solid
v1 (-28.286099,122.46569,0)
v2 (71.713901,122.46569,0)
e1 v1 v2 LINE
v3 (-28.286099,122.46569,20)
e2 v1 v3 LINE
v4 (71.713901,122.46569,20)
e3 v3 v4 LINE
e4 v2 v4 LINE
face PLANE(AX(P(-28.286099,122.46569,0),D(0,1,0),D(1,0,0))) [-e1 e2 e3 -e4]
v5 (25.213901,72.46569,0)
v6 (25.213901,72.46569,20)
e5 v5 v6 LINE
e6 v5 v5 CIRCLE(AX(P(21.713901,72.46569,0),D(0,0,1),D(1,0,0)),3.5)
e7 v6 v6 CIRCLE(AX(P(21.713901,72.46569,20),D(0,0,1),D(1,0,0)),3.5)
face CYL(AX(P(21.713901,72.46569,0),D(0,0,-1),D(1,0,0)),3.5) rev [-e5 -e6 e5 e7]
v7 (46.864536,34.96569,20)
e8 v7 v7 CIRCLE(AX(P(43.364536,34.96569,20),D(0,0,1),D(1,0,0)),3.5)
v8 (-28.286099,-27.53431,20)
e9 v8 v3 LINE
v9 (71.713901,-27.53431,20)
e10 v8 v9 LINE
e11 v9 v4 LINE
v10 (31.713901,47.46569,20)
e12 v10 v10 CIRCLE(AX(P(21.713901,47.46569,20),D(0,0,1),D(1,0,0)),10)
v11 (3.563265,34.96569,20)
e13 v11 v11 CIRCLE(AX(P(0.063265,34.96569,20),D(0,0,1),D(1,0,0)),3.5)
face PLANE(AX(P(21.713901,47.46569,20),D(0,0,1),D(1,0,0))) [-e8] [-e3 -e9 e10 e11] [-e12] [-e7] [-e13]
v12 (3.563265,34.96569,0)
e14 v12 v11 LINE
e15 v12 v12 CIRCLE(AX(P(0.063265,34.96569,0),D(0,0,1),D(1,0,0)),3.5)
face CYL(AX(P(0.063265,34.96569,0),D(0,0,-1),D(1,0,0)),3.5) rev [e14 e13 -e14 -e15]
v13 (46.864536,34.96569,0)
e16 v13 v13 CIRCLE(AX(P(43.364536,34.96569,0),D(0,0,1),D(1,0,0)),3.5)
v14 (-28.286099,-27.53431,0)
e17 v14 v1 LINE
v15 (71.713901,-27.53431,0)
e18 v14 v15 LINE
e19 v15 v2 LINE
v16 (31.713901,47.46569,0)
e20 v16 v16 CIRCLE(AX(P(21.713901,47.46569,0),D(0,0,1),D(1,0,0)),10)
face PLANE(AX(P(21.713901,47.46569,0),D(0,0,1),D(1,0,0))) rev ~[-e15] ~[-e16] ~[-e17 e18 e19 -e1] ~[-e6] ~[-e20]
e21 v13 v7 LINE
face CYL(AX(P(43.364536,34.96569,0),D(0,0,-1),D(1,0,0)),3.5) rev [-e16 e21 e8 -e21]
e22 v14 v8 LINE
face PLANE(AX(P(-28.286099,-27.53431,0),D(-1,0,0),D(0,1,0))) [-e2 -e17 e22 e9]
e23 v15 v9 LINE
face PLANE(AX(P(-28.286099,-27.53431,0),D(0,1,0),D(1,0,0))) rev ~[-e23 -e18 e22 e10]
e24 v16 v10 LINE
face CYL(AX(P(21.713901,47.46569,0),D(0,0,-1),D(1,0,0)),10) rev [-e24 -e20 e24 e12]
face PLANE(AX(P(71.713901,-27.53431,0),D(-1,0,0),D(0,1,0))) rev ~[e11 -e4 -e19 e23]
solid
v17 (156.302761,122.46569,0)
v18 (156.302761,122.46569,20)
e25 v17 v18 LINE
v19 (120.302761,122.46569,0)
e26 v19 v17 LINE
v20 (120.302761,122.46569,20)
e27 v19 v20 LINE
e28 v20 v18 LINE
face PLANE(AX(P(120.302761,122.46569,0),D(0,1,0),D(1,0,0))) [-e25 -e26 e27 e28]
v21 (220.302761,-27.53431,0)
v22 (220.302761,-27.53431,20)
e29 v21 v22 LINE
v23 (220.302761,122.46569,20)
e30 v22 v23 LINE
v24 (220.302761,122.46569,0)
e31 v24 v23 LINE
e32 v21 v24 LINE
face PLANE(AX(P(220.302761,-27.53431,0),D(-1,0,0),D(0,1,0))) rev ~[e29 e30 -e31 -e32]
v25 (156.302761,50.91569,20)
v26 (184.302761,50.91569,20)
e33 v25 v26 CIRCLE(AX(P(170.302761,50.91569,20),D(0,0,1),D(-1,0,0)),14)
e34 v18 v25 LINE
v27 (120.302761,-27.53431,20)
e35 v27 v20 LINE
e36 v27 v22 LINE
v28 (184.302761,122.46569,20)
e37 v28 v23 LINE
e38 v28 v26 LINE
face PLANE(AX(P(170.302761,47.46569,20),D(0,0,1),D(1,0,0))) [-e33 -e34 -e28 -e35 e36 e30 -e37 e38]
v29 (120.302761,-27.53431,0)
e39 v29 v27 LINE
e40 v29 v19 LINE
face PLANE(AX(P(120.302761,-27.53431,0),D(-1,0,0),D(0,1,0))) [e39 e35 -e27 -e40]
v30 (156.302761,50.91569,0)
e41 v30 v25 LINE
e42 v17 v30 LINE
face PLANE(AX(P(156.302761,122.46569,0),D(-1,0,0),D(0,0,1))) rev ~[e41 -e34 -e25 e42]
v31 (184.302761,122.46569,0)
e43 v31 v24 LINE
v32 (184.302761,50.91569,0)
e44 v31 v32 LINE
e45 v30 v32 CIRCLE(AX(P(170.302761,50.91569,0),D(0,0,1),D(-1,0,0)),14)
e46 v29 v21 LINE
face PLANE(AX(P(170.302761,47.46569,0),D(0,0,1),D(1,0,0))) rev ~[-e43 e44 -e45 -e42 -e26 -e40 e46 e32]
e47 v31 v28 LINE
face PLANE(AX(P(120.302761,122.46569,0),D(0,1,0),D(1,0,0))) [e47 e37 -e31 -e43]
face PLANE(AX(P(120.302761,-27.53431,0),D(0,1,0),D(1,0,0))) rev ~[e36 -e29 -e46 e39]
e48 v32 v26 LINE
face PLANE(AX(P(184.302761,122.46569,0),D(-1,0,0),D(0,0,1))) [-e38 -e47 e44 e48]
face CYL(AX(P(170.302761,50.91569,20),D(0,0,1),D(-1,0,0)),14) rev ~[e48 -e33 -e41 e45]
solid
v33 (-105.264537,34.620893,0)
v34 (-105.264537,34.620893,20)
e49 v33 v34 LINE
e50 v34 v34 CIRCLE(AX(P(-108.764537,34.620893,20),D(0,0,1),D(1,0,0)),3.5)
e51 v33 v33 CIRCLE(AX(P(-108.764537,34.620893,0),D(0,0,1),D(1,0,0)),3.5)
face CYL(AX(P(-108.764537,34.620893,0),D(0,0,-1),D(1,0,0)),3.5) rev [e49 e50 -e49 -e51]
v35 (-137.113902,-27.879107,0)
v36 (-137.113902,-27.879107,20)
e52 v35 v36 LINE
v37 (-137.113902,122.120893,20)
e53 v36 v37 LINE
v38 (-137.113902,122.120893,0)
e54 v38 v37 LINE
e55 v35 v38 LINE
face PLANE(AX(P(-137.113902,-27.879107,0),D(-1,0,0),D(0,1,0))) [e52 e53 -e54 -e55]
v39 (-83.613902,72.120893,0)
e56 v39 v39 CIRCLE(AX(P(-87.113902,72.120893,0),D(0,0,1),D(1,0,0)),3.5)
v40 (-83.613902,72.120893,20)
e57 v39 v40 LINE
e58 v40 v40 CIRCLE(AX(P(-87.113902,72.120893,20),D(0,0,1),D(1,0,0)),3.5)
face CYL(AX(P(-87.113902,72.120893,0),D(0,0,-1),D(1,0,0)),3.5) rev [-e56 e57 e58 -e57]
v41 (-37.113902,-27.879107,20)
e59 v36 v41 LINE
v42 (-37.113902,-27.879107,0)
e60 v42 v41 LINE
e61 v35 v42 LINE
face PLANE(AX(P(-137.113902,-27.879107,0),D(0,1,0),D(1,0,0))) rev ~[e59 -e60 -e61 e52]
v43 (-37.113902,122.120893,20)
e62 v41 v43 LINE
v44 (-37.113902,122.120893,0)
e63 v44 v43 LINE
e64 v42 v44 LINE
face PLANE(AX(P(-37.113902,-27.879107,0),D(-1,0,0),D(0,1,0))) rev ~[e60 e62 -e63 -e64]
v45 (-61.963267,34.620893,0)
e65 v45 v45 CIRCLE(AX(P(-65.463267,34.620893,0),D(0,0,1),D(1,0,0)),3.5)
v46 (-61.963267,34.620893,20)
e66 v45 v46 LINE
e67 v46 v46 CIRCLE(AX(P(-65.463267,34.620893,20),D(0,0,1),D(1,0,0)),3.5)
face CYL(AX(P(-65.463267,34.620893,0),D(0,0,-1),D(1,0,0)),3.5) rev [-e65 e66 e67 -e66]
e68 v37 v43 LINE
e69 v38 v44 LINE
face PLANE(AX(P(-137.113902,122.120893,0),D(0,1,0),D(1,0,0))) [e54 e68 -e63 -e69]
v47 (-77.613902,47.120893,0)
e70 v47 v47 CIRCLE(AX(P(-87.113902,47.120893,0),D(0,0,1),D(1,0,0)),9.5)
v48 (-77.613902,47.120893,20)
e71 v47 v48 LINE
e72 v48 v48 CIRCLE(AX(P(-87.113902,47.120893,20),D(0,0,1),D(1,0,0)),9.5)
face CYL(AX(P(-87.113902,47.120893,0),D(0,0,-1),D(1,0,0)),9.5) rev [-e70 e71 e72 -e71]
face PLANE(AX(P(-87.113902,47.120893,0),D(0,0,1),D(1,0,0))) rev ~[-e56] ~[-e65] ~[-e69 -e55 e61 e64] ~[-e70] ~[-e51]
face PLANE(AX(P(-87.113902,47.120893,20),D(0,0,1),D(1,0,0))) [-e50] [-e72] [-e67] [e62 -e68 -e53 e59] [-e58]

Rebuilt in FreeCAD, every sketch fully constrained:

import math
import FreeCAD as App
import Part
import Sketcher
from FreeCAD import Vector

doc = App.newDocument("Part")
body = doc.addObject("PartDesign::Body", "Body")
body.AllowCompound = True

# Sketch on XY plane
sketch1 = body.newObject("Sketcher::SketchObject", "Sketch")
sketch1.AttachmentSupport = (doc.getObject("XY_Plane"), [""])
sketch1.MapMode = "FlatFace"
sketch1.addGeometry([
    Part.LineSegment(Vector(-28.286099, 122.46569, 0), Vector(-28.286099, -27.53431, 0)),  # 0
    Part.LineSegment(Vector(-28.286099, -27.53431, 0), Vector(71.713901, -27.53431, 0)),  # 1
    Part.LineSegment(Vector(71.713901, -27.53431, 0), Vector(71.713901, 122.46569, 0)),  # 2
    Part.LineSegment(Vector(71.713901, 122.46569, 0), Vector(-28.286099, 122.46569, 0)),  # 3
    Part.Circle(Vector(0.063265, 34.96569, 0), Vector(0, 0, 1), 3.5),  # 4
    Part.Circle(Vector(43.364536, 34.96569, 0), Vector(0, 0, 1), 3.5),  # 5
    Part.Circle(Vector(21.713901, 47.46569, 0), Vector(0, 0, 1), 10),  # 6
    Part.Circle(Vector(21.713901, 72.46569, 0), Vector(0, 0, 1), 3.5),  # 7
    Part.LineSegment(Vector(-137.113902, 122.120893, 0), Vector(-137.113902, -27.879107, 0)),  # 8
    Part.LineSegment(Vector(-137.113902, -27.879107, 0), Vector(-37.113902, -27.879107, 0)),  # 9
    Part.LineSegment(Vector(-37.113902, -27.879107, 0), Vector(-37.113902, 122.120893, 0)),  # 10
    Part.LineSegment(Vector(-37.113902, 122.120893, 0), Vector(-137.113902, 122.120893, 0)),  # 11
    Part.Circle(Vector(-108.764537, 34.620893, 0), Vector(0, 0, 1), 3.5),  # 12
    Part.Circle(Vector(-65.463267, 34.620893, 0), Vector(0, 0, 1), 3.5),  # 13
    Part.Circle(Vector(-87.113902, 47.120893, 0), Vector(0, 0, 1), 9.5),  # 14
    Part.Circle(Vector(-87.113902, 72.120893, 0), Vector(0, 0, 1), 3.5),  # 15
    Part.LineSegment(Vector(120.302761, 122.46569, 0), Vector(120.302761, -27.53431, 0)),  # 16
    Part.LineSegment(Vector(120.302761, -27.53431, 0), Vector(220.302761, -27.53431, 0)),  # 17
    Part.LineSegment(Vector(220.302761, -27.53431, 0), Vector(220.302761, 122.46569, 0)),  # 18
    Part.LineSegment(Vector(220.302761, 122.46569, 0), Vector(120.302761, 122.46569, 0)),  # 19
], False)
sketch1.addConstraint([
    Sketcher.Constraint("Coincident", 0, 2, 1, 1),
    Sketcher.Constraint("Coincident", 1, 2, 2, 1),
    Sketcher.Constraint("Coincident", 2, 2, 3, 1),
    Sketcher.Constraint("Coincident", 3, 2, 0, 1),
    Sketcher.Constraint("Coincident", 8, 2, 9, 1),
    Sketcher.Constraint("Coincident", 9, 2, 10, 1),
    Sketcher.Constraint("Coincident", 10, 2, 11, 1),
    Sketcher.Constraint("Coincident", 11, 2, 8, 1),
    Sketcher.Constraint("Coincident", 16, 2, 17, 1),
    Sketcher.Constraint("Coincident", 17, 2, 18, 1),
    Sketcher.Constraint("Coincident", 18, 2, 19, 1),
    Sketcher.Constraint("Coincident", 19, 2, 16, 1),
    Sketcher.Constraint("Vertical", 0),
    Sketcher.Constraint("Horizontal", 1),
    Sketcher.Constraint("Vertical", 2),
    Sketcher.Constraint("Horizontal", 3),
    Sketcher.Constraint("Vertical", 8),
    Sketcher.Constraint("Horizontal", 9),
    Sketcher.Constraint("Vertical", 10),
    Sketcher.Constraint("Horizontal", 11),
    Sketcher.Constraint("Vertical", 16),
    Sketcher.Constraint("Horizontal", 17),
    Sketcher.Constraint("Vertical", 18),
    Sketcher.Constraint("Horizontal", 19),
    Sketcher.Constraint("Equal", 4, 5),
    Sketcher.Constraint("Equal", 5, 7),
    Sketcher.Constraint("Equal", 7, 12),
    Sketcher.Constraint("Equal", 12, 13),
    Sketcher.Constraint("Equal", 13, 15),
    Sketcher.Constraint("Horizontal", 4, 3, 5, 3),
    Sketcher.Constraint("Horizontal", 12, 3, 13, 3),
    Sketcher.Constraint("Horizontal", 1, 2, 16, 2),
    Sketcher.Constraint("Horizontal", 3, 2, 18, 2),
    Sketcher.Constraint("Vertical", 6, 3, 7, 3),
    Sketcher.Constraint("Vertical", 14, 3, 15, 3),
    Sketcher.Constraint("Equal", 3, 9),
    Sketcher.Constraint("Equal", 11, 17),
    Sketcher.Constraint("Equal", 2, 8),
    Sketcher.Constraint("Diameter", 4, 7.0),
    Sketcher.Constraint("Diameter", 6, 20.0),
    Sketcher.Constraint("Diameter", 14, 19.0),
    Sketcher.Constraint("DistanceX", 1, 1, 1, 2, 100.0),
    Sketcher.Constraint("DistanceY", 0, 2, 0, 1, 150.0),
    Sketcher.Constraint("DistanceY", 6, 3, 7, 3, 25.0),
    Sketcher.Constraint("DistanceY", 14, 3, 15, 3, 25.0),
    Sketcher.Constraint("DistanceX", 0, 2, 6, 3, 50.0),
    Sketcher.Constraint("DistanceY", 0, 2, 6, 3, 75.0),
    Sketcher.Constraint("DistanceX", 8, 2, 14, 3, 50.0),
    Sketcher.Constraint("DistanceY", 8, 2, 14, 3, 75.0),
    Sketcher.Constraint("DistanceY", 5, 3, 6, 3, 12.5),
    Sketcher.Constraint("DistanceY", 13, 3, 14, 3, 12.5),
    Sketcher.Constraint("DistanceX", -1, 1, 6, 3, 21.713901),
    Sketcher.Constraint("DistanceX", 14, 3, -1, 1, 87.113902),
    Sketcher.Constraint("DistanceY", -1, 1, 4, 3, 34.96569),
    Sketcher.Constraint("DistanceX", -1, 1, 16, 2, 120.302761),
    Sketcher.Constraint("DistanceX", 4, 3, 5, 3, 43.301271),
    Sketcher.Constraint("DistanceX", 12, 3, 6, 3, 130.478438),
    Sketcher.Constraint("DistanceX", 12, 3, 13, 3, 43.30127),
    Sketcher.Constraint("DistanceX", -1, 1, 4, 3, 0.063265),
    Sketcher.Constraint("DistanceY", -1, 1, 12, 3, 34.620893),
])
pad1 = body.newObject("PartDesign::Pad", "Pad")
pad1.Profile = sketch1
pad1.Length = 20

# Sketch on XZ plane
sketch2 = body.newObject("Sketcher::SketchObject", "Sketch001")
sketch2.AttachmentSupport = (doc.getObject("XZ_Plane"), [""])
sketch2.MapMode = "FlatFace"
sketch2.AttachmentOffset = App.Placement(Vector(0, 0, -122.46569), App.Rotation())
sketch2.addGeometry([
    Part.LineSegment(Vector(184.302761, 20, 0), Vector(184.302761, 0, 0)),
    Part.LineSegment(Vector(184.302761, 0, 0), Vector(156.302761, 0, 0)),
    Part.LineSegment(Vector(156.302761, 0, 0), Vector(156.302761, 20, 0)),
    Part.LineSegment(Vector(156.302761, 20, 0), Vector(184.302761, 20, 0)),
], False)
sketch2.addConstraint([
    Sketcher.Constraint("Coincident", 0, 2, 1, 1),
    Sketcher.Constraint("Coincident", 1, 2, 2, 1),
    Sketcher.Constraint("Coincident", 2, 2, 3, 1),
    Sketcher.Constraint("Coincident", 3, 2, 0, 1),
    Sketcher.Constraint("Vertical", 0),
    Sketcher.Constraint("Horizontal", 1),
    Sketcher.Constraint("Vertical", 2),
    Sketcher.Constraint("Horizontal", 3),
    Sketcher.Constraint("PointOnObject", 0, 2, -1),
    Sketcher.Constraint("DistanceX", 1, 2, 1, 1, 28.0),
    Sketcher.Constraint("DistanceY", 0, 2, 0, 1, 20.0),
    Sketcher.Constraint("DistanceX", -1, 1, 0, 2, 184.302761),
])
pocket1 = body.newObject("PartDesign::Pocket", "Pocket")
pocket1.Profile = sketch2
pocket1.Length = 71.55
pocket1.Reversed = True

# Sketch on XY plane
sketch3 = body.newObject("Sketcher::SketchObject", "Sketch002")
sketch3.AttachmentSupport = (doc.getObject("XY_Plane"), [""])
sketch3.MapMode = "FlatFace"
sketch3.AttachmentOffset = App.Placement(Vector(0, 0, 20), App.Rotation())
sketch3.addGeometry([
    Part.LineSegment(Vector(184.302761, 50.91569, 0), Vector(156.302761, 50.91569, 0)),
    Part.ArcOfCircle(Part.Circle(Vector(170.302761, 50.91569, 0), Vector(0, 0, 1), 14), math.radians(180), math.radians(360)),
], False)
sketch3.addConstraint([
    Sketcher.Constraint("Coincident", 0, 1, 1, 2),
    Sketcher.Constraint("Coincident", 1, 1, 0, 2),
    Sketcher.Constraint("Horizontal", 0),
    Sketcher.Constraint("Horizontal", 1, 3, 0, 1),
    Sketcher.Constraint("Radius", 1, 14.0),
    Sketcher.Constraint("DistanceX", -1, 1, 1, 3, 170.302761),
    Sketcher.Constraint("DistanceY", -1, 1, 1, 3, 50.91569),
])
pocket2 = body.newObject("PartDesign::Pocket", "Pocket001")
pocket2.Profile = sketch3
pocket2.Length = 25

doc.recompute()
